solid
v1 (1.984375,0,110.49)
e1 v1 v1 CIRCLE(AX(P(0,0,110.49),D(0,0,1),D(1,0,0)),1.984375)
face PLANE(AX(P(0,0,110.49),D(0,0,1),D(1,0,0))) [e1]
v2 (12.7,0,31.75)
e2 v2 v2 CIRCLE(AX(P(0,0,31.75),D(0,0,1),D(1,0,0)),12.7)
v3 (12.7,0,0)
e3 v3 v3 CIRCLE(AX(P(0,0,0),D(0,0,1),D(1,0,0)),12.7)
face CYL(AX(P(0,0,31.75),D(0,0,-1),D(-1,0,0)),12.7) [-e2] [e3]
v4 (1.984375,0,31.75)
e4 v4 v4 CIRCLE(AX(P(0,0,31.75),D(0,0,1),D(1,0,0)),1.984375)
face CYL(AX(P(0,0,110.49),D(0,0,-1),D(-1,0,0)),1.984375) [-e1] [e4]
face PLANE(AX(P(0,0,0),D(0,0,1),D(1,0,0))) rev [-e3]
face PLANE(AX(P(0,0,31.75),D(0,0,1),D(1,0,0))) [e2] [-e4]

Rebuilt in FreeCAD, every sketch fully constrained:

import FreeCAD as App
import Part
import Sketcher

V = App.Vector
Q = App.Units.Quantity

doc = App.newDocument("Part")
body = doc.addObject("PartDesign::Body", "Body")

# Sketch on XY plane
sketch1 = body.newObject("Sketcher::SketchObject", "Sketch")
sketch1.AttachmentSupport = (doc.getObject("XY_Plane"), [""])
sketch1.MapMode = "FlatFace"
sketch1.addGeometry(Part.Circle(V(0, 0, 0), V(0, 0, 1), 13), False)
sketch1.addConstraint(Sketcher.Constraint("Coincident", 0, 3, -1, 1))
sketch1.addConstraint(Sketcher.Constraint("Diameter", 0, Q("1 in")))
pad1 = body.newObject("PartDesign::Pad", "Pad")
pad1.Profile = sketch1
pad1.Length = Q("1.25 in")

# Sketch on XY plane
sketch2 = body.newObject("Sketcher::SketchObject", "Sketch001")
sketch2.AttachmentSupport = (doc.getObject("XY_Plane"), [""])
sketch2.MapMode = "FlatFace"
sketch2.AttachmentOffset = App.Placement(V(0, 0, 1.25 * 25.4), App.Rotation())
sketch2.addGeometry(Part.Circle(V(0, 0, 0), V(0, 0, 1), 2), False)
sketch2.addConstraint(Sketcher.Constraint("Coincident", 0, 3, -1, 1))
sketch2.addConstraint(Sketcher.Constraint("Diameter", 0, Q("0.15625 in")))
pad2 = body.newObject("PartDesign::Pad", "Pad001")
pad2.Profile = sketch2
pad2.Length = Q("3.1 in")

doc.recompute()
